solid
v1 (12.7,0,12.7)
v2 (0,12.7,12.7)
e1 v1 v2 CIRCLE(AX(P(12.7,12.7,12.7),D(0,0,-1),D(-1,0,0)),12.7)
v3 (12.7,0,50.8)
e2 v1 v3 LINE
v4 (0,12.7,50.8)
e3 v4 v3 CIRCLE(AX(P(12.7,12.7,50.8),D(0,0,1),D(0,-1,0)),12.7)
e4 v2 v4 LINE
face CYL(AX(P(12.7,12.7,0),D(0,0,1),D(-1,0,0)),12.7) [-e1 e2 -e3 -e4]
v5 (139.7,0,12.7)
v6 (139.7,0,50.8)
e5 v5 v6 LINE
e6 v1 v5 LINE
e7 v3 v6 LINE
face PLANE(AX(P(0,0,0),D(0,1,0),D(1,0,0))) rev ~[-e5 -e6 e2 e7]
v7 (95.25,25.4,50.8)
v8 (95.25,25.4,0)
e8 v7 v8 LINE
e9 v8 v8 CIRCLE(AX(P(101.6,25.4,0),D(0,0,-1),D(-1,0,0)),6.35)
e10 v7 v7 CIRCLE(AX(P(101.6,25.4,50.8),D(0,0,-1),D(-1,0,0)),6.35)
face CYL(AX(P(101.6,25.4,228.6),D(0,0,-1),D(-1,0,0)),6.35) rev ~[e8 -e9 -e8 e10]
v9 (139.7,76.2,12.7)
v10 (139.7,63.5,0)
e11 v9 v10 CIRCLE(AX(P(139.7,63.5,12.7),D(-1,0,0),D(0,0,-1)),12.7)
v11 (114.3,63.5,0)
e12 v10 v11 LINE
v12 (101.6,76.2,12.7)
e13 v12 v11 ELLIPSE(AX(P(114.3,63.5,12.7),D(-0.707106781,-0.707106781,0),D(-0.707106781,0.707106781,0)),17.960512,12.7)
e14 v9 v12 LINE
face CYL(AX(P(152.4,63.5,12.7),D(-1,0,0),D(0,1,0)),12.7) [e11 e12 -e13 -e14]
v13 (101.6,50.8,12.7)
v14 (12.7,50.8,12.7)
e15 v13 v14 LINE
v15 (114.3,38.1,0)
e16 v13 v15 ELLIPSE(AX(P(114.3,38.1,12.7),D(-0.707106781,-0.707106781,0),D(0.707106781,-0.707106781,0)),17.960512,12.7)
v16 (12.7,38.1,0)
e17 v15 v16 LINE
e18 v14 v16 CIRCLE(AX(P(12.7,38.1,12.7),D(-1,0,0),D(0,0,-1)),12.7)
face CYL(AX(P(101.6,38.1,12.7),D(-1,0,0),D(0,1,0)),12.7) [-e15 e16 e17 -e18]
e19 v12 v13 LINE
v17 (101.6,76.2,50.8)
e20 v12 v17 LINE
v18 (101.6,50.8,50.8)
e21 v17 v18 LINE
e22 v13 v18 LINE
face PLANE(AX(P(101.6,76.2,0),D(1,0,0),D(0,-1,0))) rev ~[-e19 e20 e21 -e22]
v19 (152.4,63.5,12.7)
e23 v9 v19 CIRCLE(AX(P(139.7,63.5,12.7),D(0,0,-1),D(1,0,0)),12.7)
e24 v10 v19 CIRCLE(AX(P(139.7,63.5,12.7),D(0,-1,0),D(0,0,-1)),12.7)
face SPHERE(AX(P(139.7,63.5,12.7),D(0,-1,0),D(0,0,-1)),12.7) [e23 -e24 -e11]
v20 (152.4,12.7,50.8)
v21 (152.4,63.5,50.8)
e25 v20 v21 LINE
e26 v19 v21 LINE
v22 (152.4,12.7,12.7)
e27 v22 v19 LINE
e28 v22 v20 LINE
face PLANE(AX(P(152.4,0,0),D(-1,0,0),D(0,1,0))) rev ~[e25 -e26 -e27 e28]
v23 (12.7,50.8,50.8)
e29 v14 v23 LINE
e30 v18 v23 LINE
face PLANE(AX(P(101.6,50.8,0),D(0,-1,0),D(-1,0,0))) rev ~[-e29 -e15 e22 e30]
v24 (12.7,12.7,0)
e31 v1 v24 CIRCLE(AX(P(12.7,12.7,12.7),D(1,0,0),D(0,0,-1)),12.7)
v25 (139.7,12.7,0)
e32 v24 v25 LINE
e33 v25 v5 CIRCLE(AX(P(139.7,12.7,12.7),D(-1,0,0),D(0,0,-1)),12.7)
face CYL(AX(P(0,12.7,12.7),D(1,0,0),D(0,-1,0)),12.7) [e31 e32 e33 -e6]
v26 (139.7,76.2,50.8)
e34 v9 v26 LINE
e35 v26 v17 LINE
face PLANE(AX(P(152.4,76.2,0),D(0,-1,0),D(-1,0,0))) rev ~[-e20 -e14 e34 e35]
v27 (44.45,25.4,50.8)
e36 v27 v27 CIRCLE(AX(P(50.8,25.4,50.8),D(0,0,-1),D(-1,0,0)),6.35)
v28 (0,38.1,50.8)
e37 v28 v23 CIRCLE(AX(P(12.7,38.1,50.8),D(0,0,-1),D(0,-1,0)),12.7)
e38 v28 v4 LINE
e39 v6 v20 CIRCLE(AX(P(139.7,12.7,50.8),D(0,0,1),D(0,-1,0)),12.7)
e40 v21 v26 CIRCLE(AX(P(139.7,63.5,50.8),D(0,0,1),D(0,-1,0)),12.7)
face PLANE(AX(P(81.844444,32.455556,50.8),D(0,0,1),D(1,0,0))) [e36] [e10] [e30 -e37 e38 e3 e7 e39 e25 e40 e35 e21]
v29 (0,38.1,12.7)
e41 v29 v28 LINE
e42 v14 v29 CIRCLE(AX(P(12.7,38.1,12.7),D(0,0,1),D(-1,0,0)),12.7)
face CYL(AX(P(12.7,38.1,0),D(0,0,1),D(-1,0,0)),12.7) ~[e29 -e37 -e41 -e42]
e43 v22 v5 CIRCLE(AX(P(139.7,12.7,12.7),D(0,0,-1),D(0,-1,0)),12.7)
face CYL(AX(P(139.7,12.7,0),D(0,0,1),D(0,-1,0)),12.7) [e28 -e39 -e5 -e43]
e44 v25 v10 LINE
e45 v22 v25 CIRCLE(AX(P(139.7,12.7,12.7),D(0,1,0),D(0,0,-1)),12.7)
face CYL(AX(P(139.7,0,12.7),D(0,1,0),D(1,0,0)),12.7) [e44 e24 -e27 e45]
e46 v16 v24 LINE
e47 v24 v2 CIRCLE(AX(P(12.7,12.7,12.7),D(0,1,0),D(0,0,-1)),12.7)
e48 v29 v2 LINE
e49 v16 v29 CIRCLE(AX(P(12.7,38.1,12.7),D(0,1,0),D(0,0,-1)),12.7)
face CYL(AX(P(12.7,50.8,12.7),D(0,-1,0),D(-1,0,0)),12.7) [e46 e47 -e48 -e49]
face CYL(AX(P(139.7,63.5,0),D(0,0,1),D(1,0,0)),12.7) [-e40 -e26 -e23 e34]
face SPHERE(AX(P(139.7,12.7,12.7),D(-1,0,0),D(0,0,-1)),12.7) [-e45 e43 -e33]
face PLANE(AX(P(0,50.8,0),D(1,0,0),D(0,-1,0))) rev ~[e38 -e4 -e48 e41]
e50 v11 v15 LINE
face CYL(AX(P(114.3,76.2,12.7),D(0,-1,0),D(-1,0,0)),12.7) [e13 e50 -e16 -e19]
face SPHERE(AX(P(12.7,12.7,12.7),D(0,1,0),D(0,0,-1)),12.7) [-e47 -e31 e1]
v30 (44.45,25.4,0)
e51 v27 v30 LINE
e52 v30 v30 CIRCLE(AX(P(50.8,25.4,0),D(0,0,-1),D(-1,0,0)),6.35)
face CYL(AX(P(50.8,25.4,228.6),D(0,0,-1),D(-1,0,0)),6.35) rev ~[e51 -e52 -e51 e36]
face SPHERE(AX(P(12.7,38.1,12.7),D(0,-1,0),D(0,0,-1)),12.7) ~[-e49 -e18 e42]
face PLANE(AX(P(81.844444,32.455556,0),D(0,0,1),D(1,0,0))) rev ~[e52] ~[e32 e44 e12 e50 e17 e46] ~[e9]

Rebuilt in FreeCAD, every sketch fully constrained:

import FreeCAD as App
import Part
import Sketcher

V = App.Vector
Q = App.Units.Quantity


def edges_at(feature, points):
    """Names of the edges that pass closest to the given points."""
    edges = feature.Shape.Edges
    near = lambda p: min(range(len(edges)), key=lambda i: edges[i].distToShape(Part.Vertex(*p))[0])
    return sorted({f"Edge{near(p) + 1}" for p in points})

doc = App.newDocument("Part")
params = doc.addObject("Spreadsheet::Sheet", "Params")
for row, (alias, value) in enumerate([
    ("sketch1_width", "6 in"),
    ("sketch1_width2", "2 in"),
    ("sketch1_height", "3 in"),
    ("pad1_length", "2 in"),
    ("fillet_radius", "0.5 in"),
    ("sketch2_diameter", "0.5 in"),
    ("hole_diameter", "0.5 in"),
], start=1):
    params.set(f"A{row}", alias)
    params.set(f"B{row}", "=" + value)
    params.setAlias(f"B{row}", alias)

body = doc.addObject("PartDesign::Body", "Body")

# Sketch on XY plane
sketch1 = body.newObject("Sketcher::SketchObject", "Sketch")
sketch1.AttachmentSupport = (doc.getObject("XY_Plane"), [""])
sketch1.MapMode = "FlatFace"
sketch1.addGeometry([
    Part.LineSegment(V(0, 51, 0), V(0, 0, 0)),  # 0
    Part.LineSegment(V(0, 0, 0), V(152, 0, 0)),  # 1
    Part.LineSegment(V(152, 0, 0), V(152, 76, 0)),  # 2
    Part.LineSegment(V(152, 76, 0), V(102, 76, 0)),  # 3
    Part.LineSegment(V(102, 76, 0), V(102, 51, 0)),  # 4
    Part.LineSegment(V(102, 51, 0), V(0, 51, 0)),  # 5
], False)
sketch1.addConstraint([
    Sketcher.Constraint("Coincident", 0, 2, 1, 1),
    Sketcher.Constraint("Coincident", 1, 2, 2, 1),
    Sketcher.Constraint("Coincident", 2, 2, 3, 1),
    Sketcher.Constraint("Coincident", 3, 2, 4, 1),
    Sketcher.Constraint("Coincident", 4, 2, 5, 1),
    Sketcher.Constraint("Coincident", 5, 2, 0, 1),
    Sketcher.Constraint("Vertical", 0),
    Sketcher.Constraint("Horizontal", 1),
    Sketcher.Constraint("Vertical", 2),
    Sketcher.Constraint("Horizontal", 3),
    Sketcher.Constraint("Vertical", 4),
    Sketcher.Constraint("Horizontal", 5),
    Sketcher.Constraint("Coincident", 0, 2, -1, 1),
    Sketcher.Constraint("Equal", 3, 0),
    Sketcher.Constraint("DistanceX", 1, 1, 1, 2, Q("6 in")),
    Sketcher.Constraint("DistanceX", 3, 2, 3, 1, Q("2 in")),
    Sketcher.Constraint("DistanceY", 2, 1, 2, 2, Q("3 in")),
])
sketch1.setExpression("Constraints[14]", "Params.sketch1_width")
sketch1.setExpression("Constraints[15]", "Params.sketch1_width2")
sketch1.setExpression("Constraints[16]", "Params.sketch1_height")
pad1 = body.newObject("PartDesign::Pad", "Pad")
pad1.Profile = sketch1
pad1.setExpression("Length", "Params.pad1_length")
doc.recompute()

fillet = body.newObject("PartDesign::Fillet", "Fillet")
fillet.Base = (pad1, edges_at(pad1, [
    (0, 25.4, 0),
    (76.2, 0, 0),
    (152.4, 38.1, 0),
    (127, 76.2, 0),
    (101.6, 63.5, 0),
    (50.8, 50.8, 0),
    (152.4, 0, 25.4),
    (0, 0, 25.4),
    (0, 50.8, 25.4),
    (152.4, 76.2, 25.4),
]))
fillet.setExpression("Radius", "Params.fillet_radius")

# Sketch on XY plane
sketch2 = body.newObject("Sketcher::SketchObject", "Sketch001")
sketch2.AttachmentSupport = (doc.getObject("XY_Plane"), [""])
sketch2.MapMode = "FlatFace"
sketch2.AttachmentOffset = App.Placement(V(0, 0, 2 * 25.4), App.Rotation())
sketch2.addGeometry([
    Part.Circle(V(51, 25, 0), V(0, 0, 1), 6),
    Part.Circle(V(102, 25, 0), V(0, 0, 1), 6),
], False)
sketch2.addConstraint([
    Sketcher.Constraint("Equal", 0, 1),
    Sketcher.Constraint("Horizontal", 0, 3, 1, 3),
    Sketcher.Constraint("Diameter", 0, Q("0.5 in")),
    Sketcher.Constraint("DistanceX", -1, 1, 0, 3, Q("2 in")),
    Sketcher.Constraint("DistanceY", -1, 1, 0, 3, Q("1 in")),
    Sketcher.Constraint("DistanceX", -1, 1, 1, 3, Q("4 in")),
])
sketch2.setExpression("Constraints[2]", "Params.sketch2_diameter")
doc.recompute()
hole = body.newObject("PartDesign::Hole", "Hole")
hole.Profile = sketch2
hole.ThreadType = "None"
hole.setExpression("Diameter", "Params.hole_diameter")
hole.DepthType = "ThroughAll"

doc.recompute()
